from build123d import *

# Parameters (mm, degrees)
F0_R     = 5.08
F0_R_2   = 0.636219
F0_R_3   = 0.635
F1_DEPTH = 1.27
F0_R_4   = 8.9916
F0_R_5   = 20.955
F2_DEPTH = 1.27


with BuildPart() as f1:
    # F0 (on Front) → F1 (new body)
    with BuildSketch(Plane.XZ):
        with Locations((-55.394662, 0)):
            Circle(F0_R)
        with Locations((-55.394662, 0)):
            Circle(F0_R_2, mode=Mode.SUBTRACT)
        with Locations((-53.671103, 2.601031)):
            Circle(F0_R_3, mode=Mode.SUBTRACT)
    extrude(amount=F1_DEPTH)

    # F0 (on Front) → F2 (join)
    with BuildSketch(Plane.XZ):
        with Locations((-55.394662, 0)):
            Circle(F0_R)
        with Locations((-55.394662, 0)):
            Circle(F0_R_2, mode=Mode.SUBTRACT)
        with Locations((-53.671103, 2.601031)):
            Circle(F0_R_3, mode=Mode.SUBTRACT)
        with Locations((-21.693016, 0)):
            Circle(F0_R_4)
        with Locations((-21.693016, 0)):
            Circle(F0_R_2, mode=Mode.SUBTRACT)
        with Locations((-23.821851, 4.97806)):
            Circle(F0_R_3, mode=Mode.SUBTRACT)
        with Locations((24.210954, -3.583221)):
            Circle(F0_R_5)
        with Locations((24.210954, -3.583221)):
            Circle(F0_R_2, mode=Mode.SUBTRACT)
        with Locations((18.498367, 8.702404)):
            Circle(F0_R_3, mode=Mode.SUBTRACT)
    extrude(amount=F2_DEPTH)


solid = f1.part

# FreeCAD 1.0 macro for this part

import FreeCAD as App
import Part
import Sketcher

V = App.Vector
Q = App.Units.Quantity

doc = App.newDocument("Part")
body = doc.addObject("PartDesign::Body", "Body")
body.AllowCompound = True

# Sketch on XZ plane
sketch1 = body.newObject("Sketcher::SketchObject", "Sketch")
sketch1.AttachmentSupport = (doc.getObject("XZ_Plane"), [""])
sketch1.MapMode = "FlatFace"
sketch1.addGeometry([
    Part.Circle(V(-55.394662, 0, 0), V(0, 0, 1), 5.08),
    Part.Circle(V(-55.394662, 0, 0), V(0, 0, 1), 0.636219),
    Part.Circle(V(-53.671103, 2.601031, 0), V(0, 0, 1), 0.635),
], False)
sketch1.addConstraint([
    Sketcher.Constraint("Coincident", 1, 3, 0, 3),
    Sketcher.Constraint("PointOnObject", 0, 3, -1),
    Sketcher.Constraint("Diameter", 0, Q("0.4 in")),
    Sketcher.Constraint("Diameter", 2, Q("0.05 in")),
    Sketcher.Constraint("Diameter", 1, Q("1.272438 mm")),
    Sketcher.Constraint("DistanceX", 0, 3, -1, 1, Q("55.394662 mm")),
    Sketcher.Constraint("DistanceY", -1, 1, 2, 3, Q("2.601031 mm")),
    Sketcher.Constraint("DistanceX", 0, 3, 2, 3, Q("1.723559 mm")),
])
pad1 = body.newObject("PartDesign::Pad", "Pad")
pad1.Profile = sketch1
pad1.Length = Q("0.05 in")

# Sketch on XZ plane
sketch2 = body.newObject("Sketcher::SketchObject", "Sketch001")
sketch2.AttachmentSupport = (doc.getObject("XZ_Plane"), [""])
sketch2.MapMode = "FlatFace"
sketch2.addGeometry([
    Part.Circle(V(-55.394662, 0, 0), V(0, 0, 1), 5.08),  # 0
    Part.Circle(V(-55.394662, 0, 0), V(0, 0, 1), 0.636219),  # 1
    Part.Circle(V(-53.671103, 2.601031, 0), V(0, 0, 1), 0.635),  # 2
    Part.Circle(V(-21.693016, 0, 0), V(0, 0, 1), 8.9916),  # 3
    Part.Circle(V(-21.693016, 0, 0), V(0, 0, 1), 0.636219),  # 4
    Part.Circle(V(-23.821851, 4.97806, 0), V(0, 0, 1), 0.635),  # 5
    Part.Circle(V(24.210954, -3.583221, 0), V(0, 0, 1), 20.955),  # 6
    Part.Circle(V(24.210954, -3.583221, 0), V(0, 0, 1), 0.636219),  # 7
    Part.Circle(V(18.498367, 8.702404, 0), V(0, 0, 1), 0.635),  # 8
], False)
sketch2.addConstraint([
    Sketcher.Constraint("Coincident", 1, 3, 0, 3),
    Sketcher.Constraint("Coincident", 4, 3, 3, 3),
    Sketcher.Constraint("Coincident", 7, 3, 6, 3),
    Sketcher.Constraint("Equal", 1, 4),
    Sketcher.Constraint("Equal", 2, 5),
    Sketcher.Constraint("Equal", 4, 7),
    Sketcher.Constraint("Equal", 5, 8),
    Sketcher.Constraint("PointOnObject", 0, 3, -1),
    Sketcher.Constraint("PointOnObject", 3, 3, -1),
    Sketcher.Constraint("Diameter", 0, Q("0.4 in")),
    Sketcher.Constraint("Diameter", 2, Q("0.05 in")),
    Sketcher.Constraint("Diameter", 6, Q("1.65 in")),
    Sketcher.Constraint("Diameter", 3, Q("0.708 in")),
    Sketcher.Constraint("Diameter", 1, Q("1.272438 mm")),
    Sketcher.Constraint("DistanceX", 0, 3, -1, 1, Q("55.394662 mm")),
    Sketcher.Constraint("DistanceY", -1, 1, 2, 3, Q("2.601031 mm")),
    Sketcher.Constraint("DistanceX", 5, 3, -1, 1, Q("23.821851 mm")),
    Sketcher.Constraint("DistanceY", -1, 1, 5, 3, Q("4.97806 mm")),
    Sketcher.Constraint("DistanceY", 6, 3, -1, 1, Q("3.583221 mm")),
    Sketcher.Constraint("DistanceX", 0, 3, 2, 3, Q("1.723559 mm")),
    Sketcher.Constraint("DistanceX", 3, 3, 6, 3, Q("45.90397 mm")),
    Sketcher.Constraint("DistanceX", 3, 3, -1, 1, Q("21.693016 mm")),
    Sketcher.Constraint("DistanceX", -1, 1, 8, 3, Q("18.498367 mm")),
    Sketcher.Constraint("DistanceY", -1, 1, 8, 3, Q("8.702404 mm")),
])
pad2 = body.newObject("PartDesign::Pad", "Pad001")
pad2.Profile = sketch2
pad2.Length = Q("0.05 in")

doc.recompute()
